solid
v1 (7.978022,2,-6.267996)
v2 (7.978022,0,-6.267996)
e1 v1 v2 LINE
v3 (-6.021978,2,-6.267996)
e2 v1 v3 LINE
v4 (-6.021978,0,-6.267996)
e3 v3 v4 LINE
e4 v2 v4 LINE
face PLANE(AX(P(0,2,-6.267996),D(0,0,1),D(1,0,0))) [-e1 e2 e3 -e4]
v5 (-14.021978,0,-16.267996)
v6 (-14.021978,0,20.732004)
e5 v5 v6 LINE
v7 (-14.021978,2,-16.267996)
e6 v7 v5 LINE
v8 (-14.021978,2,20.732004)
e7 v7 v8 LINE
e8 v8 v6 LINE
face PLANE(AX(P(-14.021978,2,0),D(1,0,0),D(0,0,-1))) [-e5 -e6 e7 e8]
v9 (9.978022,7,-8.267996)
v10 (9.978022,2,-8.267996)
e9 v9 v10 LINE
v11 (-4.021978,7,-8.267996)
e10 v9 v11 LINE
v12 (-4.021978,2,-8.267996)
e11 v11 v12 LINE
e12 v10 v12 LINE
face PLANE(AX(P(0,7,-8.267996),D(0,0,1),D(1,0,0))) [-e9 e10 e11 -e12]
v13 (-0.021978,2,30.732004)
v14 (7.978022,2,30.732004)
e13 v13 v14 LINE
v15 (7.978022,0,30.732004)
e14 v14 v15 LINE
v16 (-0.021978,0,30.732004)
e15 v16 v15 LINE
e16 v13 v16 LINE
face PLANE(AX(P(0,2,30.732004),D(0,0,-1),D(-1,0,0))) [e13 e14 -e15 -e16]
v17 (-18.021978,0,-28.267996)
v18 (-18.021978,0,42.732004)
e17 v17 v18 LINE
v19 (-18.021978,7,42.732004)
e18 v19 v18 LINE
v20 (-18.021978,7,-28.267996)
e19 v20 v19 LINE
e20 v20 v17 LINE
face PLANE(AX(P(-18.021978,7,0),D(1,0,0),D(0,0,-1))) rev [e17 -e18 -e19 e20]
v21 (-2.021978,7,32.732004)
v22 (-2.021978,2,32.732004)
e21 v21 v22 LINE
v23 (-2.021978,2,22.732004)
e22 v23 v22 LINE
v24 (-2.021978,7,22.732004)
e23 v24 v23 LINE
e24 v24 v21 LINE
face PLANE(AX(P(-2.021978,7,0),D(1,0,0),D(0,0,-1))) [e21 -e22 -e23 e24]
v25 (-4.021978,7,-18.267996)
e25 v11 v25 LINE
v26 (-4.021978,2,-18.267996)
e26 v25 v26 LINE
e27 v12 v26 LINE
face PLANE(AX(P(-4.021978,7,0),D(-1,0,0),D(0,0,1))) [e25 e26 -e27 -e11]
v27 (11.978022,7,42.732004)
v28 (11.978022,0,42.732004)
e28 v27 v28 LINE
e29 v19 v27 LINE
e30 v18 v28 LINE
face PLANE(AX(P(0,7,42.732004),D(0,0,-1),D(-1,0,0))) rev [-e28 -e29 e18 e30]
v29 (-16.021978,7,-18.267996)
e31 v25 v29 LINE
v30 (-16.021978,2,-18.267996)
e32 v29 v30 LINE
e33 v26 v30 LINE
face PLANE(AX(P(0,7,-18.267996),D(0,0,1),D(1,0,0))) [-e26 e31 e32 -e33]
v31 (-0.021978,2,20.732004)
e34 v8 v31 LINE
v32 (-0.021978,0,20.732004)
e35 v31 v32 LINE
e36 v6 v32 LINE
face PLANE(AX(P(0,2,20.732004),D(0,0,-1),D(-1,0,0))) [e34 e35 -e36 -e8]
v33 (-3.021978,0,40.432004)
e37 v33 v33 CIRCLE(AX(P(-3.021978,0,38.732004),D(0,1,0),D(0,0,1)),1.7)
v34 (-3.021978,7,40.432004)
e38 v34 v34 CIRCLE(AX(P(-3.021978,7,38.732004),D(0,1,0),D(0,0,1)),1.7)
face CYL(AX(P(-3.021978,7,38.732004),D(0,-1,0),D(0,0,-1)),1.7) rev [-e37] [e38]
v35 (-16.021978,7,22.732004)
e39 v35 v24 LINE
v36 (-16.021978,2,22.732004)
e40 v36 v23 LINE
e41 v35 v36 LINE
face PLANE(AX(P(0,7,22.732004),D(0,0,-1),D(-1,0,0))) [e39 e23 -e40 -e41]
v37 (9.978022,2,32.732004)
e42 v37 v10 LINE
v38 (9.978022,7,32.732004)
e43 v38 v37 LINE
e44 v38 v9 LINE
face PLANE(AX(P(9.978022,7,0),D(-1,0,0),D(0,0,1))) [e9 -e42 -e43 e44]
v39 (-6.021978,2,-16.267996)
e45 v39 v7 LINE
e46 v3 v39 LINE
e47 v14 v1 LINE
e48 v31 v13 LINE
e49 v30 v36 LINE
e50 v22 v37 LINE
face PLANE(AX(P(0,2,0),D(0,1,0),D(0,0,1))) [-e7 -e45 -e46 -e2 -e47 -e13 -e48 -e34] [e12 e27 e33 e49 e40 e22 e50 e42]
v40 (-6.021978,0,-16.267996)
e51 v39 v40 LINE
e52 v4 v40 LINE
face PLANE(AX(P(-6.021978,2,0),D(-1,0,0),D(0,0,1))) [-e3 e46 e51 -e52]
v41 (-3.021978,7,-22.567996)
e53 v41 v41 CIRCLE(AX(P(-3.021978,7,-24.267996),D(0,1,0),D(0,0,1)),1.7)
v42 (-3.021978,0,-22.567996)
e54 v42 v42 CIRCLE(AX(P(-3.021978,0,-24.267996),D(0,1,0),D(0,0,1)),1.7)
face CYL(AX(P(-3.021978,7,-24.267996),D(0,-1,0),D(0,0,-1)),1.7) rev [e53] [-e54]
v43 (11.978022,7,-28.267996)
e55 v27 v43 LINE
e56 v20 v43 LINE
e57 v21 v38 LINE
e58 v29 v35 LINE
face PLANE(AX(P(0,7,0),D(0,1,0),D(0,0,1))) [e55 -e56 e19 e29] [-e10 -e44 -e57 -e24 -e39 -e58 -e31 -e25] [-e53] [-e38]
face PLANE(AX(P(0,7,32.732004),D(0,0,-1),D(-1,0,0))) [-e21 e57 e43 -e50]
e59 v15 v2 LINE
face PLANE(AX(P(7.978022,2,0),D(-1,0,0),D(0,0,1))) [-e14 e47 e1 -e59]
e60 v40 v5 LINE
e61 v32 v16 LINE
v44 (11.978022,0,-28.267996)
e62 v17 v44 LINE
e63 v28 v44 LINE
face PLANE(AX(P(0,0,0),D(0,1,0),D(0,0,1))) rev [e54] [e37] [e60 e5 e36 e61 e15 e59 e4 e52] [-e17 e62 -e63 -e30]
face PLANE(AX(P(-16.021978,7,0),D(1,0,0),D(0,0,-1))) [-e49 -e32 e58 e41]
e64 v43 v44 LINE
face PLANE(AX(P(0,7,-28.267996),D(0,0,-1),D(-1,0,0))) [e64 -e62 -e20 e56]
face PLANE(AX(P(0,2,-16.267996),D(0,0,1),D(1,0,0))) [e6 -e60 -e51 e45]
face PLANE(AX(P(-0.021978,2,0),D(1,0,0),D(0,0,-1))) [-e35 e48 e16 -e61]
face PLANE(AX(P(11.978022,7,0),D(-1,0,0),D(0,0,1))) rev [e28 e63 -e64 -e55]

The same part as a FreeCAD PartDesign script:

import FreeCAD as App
import Part
import Sketcher
from FreeCAD import Vector
Q = App.Units.Quantity

doc = App.newDocument("Part")
body = doc.addObject("PartDesign::Body", "Body")

# Sketch on XZ plane
sketch1 = doc.addObject("Sketcher::SketchObject", "Sketch")
body.addObject(sketch1)
sketch1.AttachmentSupport = (doc.XZ_Plane, [""])
sketch1.MapMode = "FlatFace"
sketch1.addGeometry([
    Part.LineSegment(Vector(-4, -8, 0), Vector(-4, -18, 0)),  # 0
    Part.LineSegment(Vector(-4, -18, 0), Vector(-16, -18, 0)),  # 1
    Part.LineSegment(Vector(-16, -18, 0), Vector(-16, 23, 0)),  # 2
    Part.LineSegment(Vector(-16, 23, 0), Vector(-2, 23, 0)),  # 3
    Part.LineSegment(Vector(-2, 23, 0), Vector(-2, 33, 0)),  # 4
    Part.LineSegment(Vector(-2, 33, 0), Vector(10, 33, 0)),  # 5
    Part.LineSegment(Vector(10, 33, 0), Vector(10, -8, 0)),  # 6
    Part.LineSegment(Vector(10, -8, 0), Vector(-4, -8, 0)),  # 7
    Part.LineSegment(Vector(-6, -16, 0), Vector(-6, -6, 0)),  # 8
    Part.LineSegment(Vector(-6, -6, 0), Vector(8, -6, 0)),  # 9
    Part.LineSegment(Vector(8, -6, 0), Vector(8, 31, 0)),  # 10
    Part.LineSegment(Vector(8, 31, 0), Vector(0, 31, 0)),  # 11
    Part.LineSegment(Vector(0, 31, 0), Vector(0, 21, 0)),  # 12
    Part.LineSegment(Vector(0, 21, 0), Vector(-14, 21, 0)),  # 13
    Part.LineSegment(Vector(-14, 21, 0), Vector(-14, -16, 0)),  # 14
    Part.LineSegment(Vector(-14, -16, 0), Vector(-6, -16, 0)),  # 15
], False)
sketch1.addConstraint([
    Sketcher.Constraint("Coincident", 0, 2, 1, 1),
    Sketcher.Constraint("Coincident", 1, 2, 2, 1),
    Sketcher.Constraint("Coincident", 2, 2, 3, 1),
    Sketcher.Constraint("Coincident", 3, 2, 4, 1),
    Sketcher.Constraint("Coincident", 4, 2, 5, 1),
    Sketcher.Constraint("Coincident", 5, 2, 6, 1),
    Sketcher.Constraint("Coincident", 6, 2, 7, 1),
    Sketcher.Constraint("Coincident", 7, 2, 0, 1),
    Sketcher.Constraint("Coincident", 8, 2, 9, 1),
    Sketcher.Constraint("Coincident", 9, 2, 10, 1),
    Sketcher.Constraint("Coincident", 10, 2, 11, 1),
    Sketcher.Constraint("Coincident", 11, 2, 12, 1),
    Sketcher.Constraint("Coincident", 12, 2, 13, 1),
    Sketcher.Constraint("Coincident", 13, 2, 14, 1),
    Sketcher.Constraint("Coincident", 14, 2, 15, 1),
    Sketcher.Constraint("Coincident", 15, 2, 8, 1),
    Sketcher.Constraint("Vertical", 0),
    Sketcher.Constraint("Horizontal", 1),
    Sketcher.Constraint("Vertical", 2),
    Sketcher.Constraint("Horizontal", 3),
    Sketcher.Constraint("Vertical", 4),
    Sketcher.Constraint("Horizontal", 5),
    Sketcher.Constraint("Vertical", 6),
    Sketcher.Constraint("Horizontal", 7),
    Sketcher.Constraint("Vertical", 8),
    Sketcher.Constraint("Horizontal", 9),
    Sketcher.Constraint("Vertical", 10),
    Sketcher.Constraint("Horizontal", 11),
    Sketcher.Constraint("Vertical", 12),
    Sketcher.Constraint("Horizontal", 13),
    Sketcher.Constraint("Vertical", 14),
    Sketcher.Constraint("Horizontal", 15),
    Sketcher.Constraint("Equal", 1, 5),
    Sketcher.Constraint("Equal", 7, 9),
    Sketcher.Constraint("Equal", 9, 13),
    Sketcher.Constraint("Equal", 0, 4),
    Sketcher.Constraint("Equal", 4, 8),
    Sketcher.Constraint("Equal", 8, 12),
    Sketcher.Constraint("DistanceX", 1, 2, 1, 1, Q("12 mm")),
    Sketcher.Constraint("DistanceX", 3, 1, 3, 2, Q("14 mm")),
    Sketcher.Constraint("DistanceX", 11, 2, 11, 1, Q("8 mm")),
    Sketcher.Constraint("DistanceY", 0, 2, 0, 1, Q("10 mm")),
    Sketcher.Constraint("DistanceY", 2, 1, 2, 2, Q("41 mm")),
    Sketcher.Constraint("DistanceY", 10, 1, 10, 2, Q("37 mm")),
    Sketcher.Constraint("DistanceX", 8, 2, 7, 2, Q("2 mm")),
    Sketcher.Constraint("DistanceY", 7, 2, 8, 2, Q("2 mm")),
    Sketcher.Constraint("DistanceX", 0, 2, -1, 1, Q("4.021978 mm")),
    Sketcher.Constraint("DistanceY", 0, 2, -1, 1, Q("18.267996 mm")),
])
pad1 = doc.addObject("PartDesign::Pad", "Pad")
body.addObject(pad1)
pad1.Profile = sketch1
pad1.Length = 2
pad1.Reversed = True

# Sketch on XZ plane
sketch2 = doc.addObject("Sketcher::SketchObject", "Sketch001")
body.addObject(sketch2)
sketch2.AttachmentSupport = (doc.XZ_Plane, [""])
sketch2.MapMode = "FlatFace"
sketch2.addGeometry([
    Part.LineSegment(Vector(-4, 25, 0), Vector(-4, 35, 0)),  # 0
    Part.LineSegment(Vector(-4, 35, 0), Vector(12, 35, 0)),  # 1
    Part.LineSegment(Vector(12, 35, 0), Vector(12, -10, 0)),  # 2
    Part.LineSegment(Vector(12, -10, 0), Vector(-2, -10, 0)),  # 3
    Part.LineSegment(Vector(-2, -10, 0), Vector(-2, -20, 0)),  # 4
    Part.LineSegment(Vector(-2, -20, 0), Vector(-18, -20, 0)),  # 5
    Part.LineSegment(Vector(-18, -20, 0), Vector(-18, 25, 0)),  # 6
    Part.LineSegment(Vector(-18, 25, 0), Vector(-4, 25, 0)),  # 7
    Part.LineSegment(Vector(-16, -18, 0), Vector(-4, -18, 0)),  # 8
    Part.LineSegment(Vector(-4, -18, 0), Vector(-4, -8, 0)),  # 9
    Part.LineSegment(Vector(-4, -8, 0), Vector(10, -8, 0)),  # 10
    Part.LineSegment(Vector(10, -8, 0), Vector(10, 33, 0)),  # 11
    Part.LineSegment(Vector(10, 33, 0), Vector(-2, 33, 0)),  # 12
    Part.LineSegment(Vector(-2, 33, 0), Vector(-2, 23, 0)),  # 13
    Part.LineSegment(Vector(-2, 23, 0), Vector(-16, 23, 0)),  # 14
    Part.LineSegment(Vector(-16, 23, 0), Vector(-16, -18, 0)),  # 15
], False)
sketch2.addConstraint([
    Sketcher.Constraint("Coincident", 0, 2, 1, 1),
    Sketcher.Constraint("Coincident", 1, 2, 2, 1),
    Sketcher.Constraint("Coincident", 2, 2, 3, 1),
    Sketcher.Constraint("Coincident", 3, 2, 4, 1),
    Sketcher.Constraint("Coincident", 4, 2, 5, 1),
    Sketcher.Constraint("Coincident", 5, 2, 6, 1),
    Sketcher.Constraint("Coincident", 6, 2, 7, 1),
    Sketcher.Constraint("Coincident", 7, 2, 0, 1),
    Sketcher.Constraint("Coincident", 8, 2, 9, 1),
    Sketcher.Constraint("Coincident", 9, 2, 10, 1),
    Sketcher.Constraint("Coincident", 10, 2, 11, 1),
    Sketcher.Constraint("Coincident", 11, 2, 12, 1),
    Sketcher.Constraint("Coincident", 12, 2, 13, 1),
    Sketcher.Constraint("Coincident", 13, 2, 14, 1),
    Sketcher.Constraint("Coincident", 14, 2, 15, 1),
    Sketcher.Constraint("Coincident", 15, 2, 8, 1),
    Sketcher.Constraint("Vertical", 0),
    Sketcher.Constraint("Horizontal", 1),
    Sketcher.Constraint("Vertical", 2),
    Sketcher.Constraint("Horizontal", 3),
    Sketcher.Constraint("Vertical", 4),
    Sketcher.Constraint("Horizontal", 5),
    Sketcher.Constraint("Vertical", 6),
    Sketcher.Constraint("Horizontal", 7),
    Sketcher.Constraint("Horizontal", 8),
    Sketcher.Constraint("Vertical", 9),
    Sketcher.Constraint("Horizontal", 10),
    Sketcher.Constraint("Vertical", 11),
    Sketcher.Constraint("Horizontal", 12),
    Sketcher.Constraint("Vertical", 13),
    Sketcher.Constraint("Horizontal", 14),
    Sketcher.Constraint("Vertical", 15),
    Sketcher.Constraint("Vertical", 7, 2, 8, 2),
    Sketcher.Constraint("Vertical", 4, 2, 12, 2),
    Sketcher.Constraint("Equal", 1, 5),
    Sketcher.Constraint("Equal", 7, 10),
    Sketcher.Constraint("Equal", 8, 12),
    Sketcher.Constraint("Equal", 0, 4),
    Sketcher.Constraint("Equal", 4, 9),
    Sketcher.Constraint("Equal", 9, 13),
    Sketcher.Constraint("DistanceX", 1, 1, 1, 2, Q("16 mm")),
    Sketcher.Constraint("DistanceX", 3, 2, 3, 1, Q("14 mm")),
    Sketcher.Constraint("DistanceY", 0, 1, 0, 2, Q("10 mm")),
    Sketcher.Constraint("DistanceY", 2, 2, 2, 1, Q("45 mm")),
    Sketcher.Constraint("DistanceY", 11, 1, 11, 2, Q("41 mm")),
    Sketcher.Constraint("DistanceY", 4, 2, 8, 2, Q("2 mm")),
    Sketcher.Constraint("DistanceX", 0, 2, -1, 1, Q("4.021978 mm")),
    Sketcher.Constraint("DistanceY", -1, 1, 0, 2, Q("34.732004 mm")),
])
pad2 = doc.addObject("PartDesign::Pad", "Pad001")
body.addObject(pad2)
pad2.Profile = sketch2
pad2.Length = 7
pad2.Reversed = True

# Sketch on XZ plane
sketch3 = doc.addObject("Sketcher::SketchObject", "Sketch002")
body.addObject(sketch3)
sketch3.AttachmentSupport = (doc.XZ_Plane, [""])
sketch3.MapMode = "FlatFace"
sketch3.addGeometry([
    Part.LineSegment(Vector(-18, 42.7, 0), Vector(12, 42.7, 0)),  # 0
    Part.LineSegment(Vector(12, 42.7, 0), Vector(12, 34.7, 0)),  # 1
    Part.LineSegment(Vector(12, 34.7, 0), Vector(-4, 34.7, 0)),  # 2
    Part.LineSegment(Vector(-4, 34.7, 0), Vector(-4, 24.7, 0)),  # 3
    Part.LineSegment(Vector(-4, 24.7, 0), Vector(-18, 24.7, 0)),  # 4
    Part.LineSegment(Vector(-18, 24.7, 0), Vector(-18, 42.7, 0)),  # 5
    Part.Circle(Vector(-3, 38.7, 0), Vector(0, 0, 1), 1.7),  # 6
    Part.LineSegment(Vector(12, -10.3, 0), Vector(12, -28.3, 0)),  # 7
    Part.LineSegment(Vector(12, -28.3, 0), Vector(-18, -28.3, 0)),  # 8
    Part.LineSegment(Vector(-18, -28.3, 0), Vector(-18, -20.3, 0)),  # 9
    Part.LineSegment(Vector(-18, -20.3, 0), Vector(-2, -20.3, 0)),  # 10
    Part.LineSegment(Vector(-2, -20.3, 0), Vector(-2, -10.3, 0)),  # 11
    Part.LineSegment(Vector(-2, -10.3, 0), Vector(12, -10.3, 0)),  # 12
    Part.Circle(Vector(-3, -24.3, 0), Vector(0, 0, 1), 1.7),  # 13
], False)
sketch3.addConstraint([
    Sketcher.Constraint("Coincident", 0, 2, 1, 1),
    Sketcher.Constraint("Coincident", 1, 2, 2, 1),
    Sketcher.Constraint("Coincident", 2, 2, 3, 1),
    Sketcher.Constraint("Coincident", 3, 2, 4, 1),
    Sketcher.Constraint("Coincident", 4, 2, 5, 1),
    Sketcher.Constraint("Coincident", 5, 2, 0, 1),
    Sketcher.Constraint("Coincident", 7, 2, 8, 1),
    Sketcher.Constraint("Coincident", 8, 2, 9, 1),
    Sketcher.Constraint("Coincident", 9, 2, 10, 1),
    Sketcher.Constraint("Coincident", 10, 2, 11, 1),
    Sketcher.Constraint("Coincident", 11, 2, 12, 1),
    Sketcher.Constraint("Coincident", 12, 2, 7, 1),
    Sketcher.Constraint("Horizontal", 0),
    Sketcher.Constraint("Vertical", 1),
    Sketcher.Constraint("Horizontal", 2),
    Sketcher.Constraint("Vertical", 3),
    Sketcher.Constraint("Horizontal", 4),
    Sketcher.Constraint("Vertical", 5),
    Sketcher.Constraint("Vertical", 7),
    Sketcher.Constraint("Horizontal", 8),
    Sketcher.Constraint("Vertical", 9),
    Sketcher.Constraint("Horizontal", 10),
    Sketcher.Constraint("Vertical", 11),
    Sketcher.Constraint("Horizontal", 12),
    Sketcher.Constraint("Equal", 6, 13),
    Sketcher.Constraint("Vertical", 6, 3, 13, 3),
    Sketcher.Constraint("Vertical", 1, 2, 7, 2),
    Sketcher.Constraint("Vertical", 5, 2, 8, 2),
    Sketcher.Constraint("Equal", 2, 10),
    Sketcher.Constraint("Equal", 5, 7),
    Sketcher.Constraint("Equal", 1, 9),
    Sketcher.Constraint("Diameter", 6, Q("3.4 mm")),
    Sketcher.Constraint("DistanceX", 0, 1, 0, 2, Q("30 mm")),
    Sketcher.Constraint("DistanceX", 2, 2, 2, 1, Q("16 mm")),
    Sketcher.Constraint("DistanceY", 1, 2, 1, 1, Q("8 mm")),
    Sketcher.Constraint("DistanceY", 3, 2, 3, 1, Q("10 mm")),
    Sketcher.Constraint("DistanceY", 13, 3, 6, 3, Q("63 mm")),
    Sketcher.Constraint("DistanceX", 6, 3, 0, 2, Q("15 mm")),
    Sketcher.Constraint("DistanceY", 6, 3, 0, 2, Q("4 mm")),
    Sketcher.Constraint("DistanceY", 7, 2, 13, 3, Q("4 mm")),
    Sketcher.Constraint("DistanceX", 6, 3, -1, 1, Q("3.021978 mm")),
    Sketcher.Constraint("DistanceY", -1, 1, 6, 3, Q("38.732004 mm")),
])
pad3 = doc.addObject("PartDesign::Pad", "Pad002")
body.addObject(pad3)
pad3.Profile = sketch3
pad3.Length = 7
pad3.Reversed = True

doc.recompute()
